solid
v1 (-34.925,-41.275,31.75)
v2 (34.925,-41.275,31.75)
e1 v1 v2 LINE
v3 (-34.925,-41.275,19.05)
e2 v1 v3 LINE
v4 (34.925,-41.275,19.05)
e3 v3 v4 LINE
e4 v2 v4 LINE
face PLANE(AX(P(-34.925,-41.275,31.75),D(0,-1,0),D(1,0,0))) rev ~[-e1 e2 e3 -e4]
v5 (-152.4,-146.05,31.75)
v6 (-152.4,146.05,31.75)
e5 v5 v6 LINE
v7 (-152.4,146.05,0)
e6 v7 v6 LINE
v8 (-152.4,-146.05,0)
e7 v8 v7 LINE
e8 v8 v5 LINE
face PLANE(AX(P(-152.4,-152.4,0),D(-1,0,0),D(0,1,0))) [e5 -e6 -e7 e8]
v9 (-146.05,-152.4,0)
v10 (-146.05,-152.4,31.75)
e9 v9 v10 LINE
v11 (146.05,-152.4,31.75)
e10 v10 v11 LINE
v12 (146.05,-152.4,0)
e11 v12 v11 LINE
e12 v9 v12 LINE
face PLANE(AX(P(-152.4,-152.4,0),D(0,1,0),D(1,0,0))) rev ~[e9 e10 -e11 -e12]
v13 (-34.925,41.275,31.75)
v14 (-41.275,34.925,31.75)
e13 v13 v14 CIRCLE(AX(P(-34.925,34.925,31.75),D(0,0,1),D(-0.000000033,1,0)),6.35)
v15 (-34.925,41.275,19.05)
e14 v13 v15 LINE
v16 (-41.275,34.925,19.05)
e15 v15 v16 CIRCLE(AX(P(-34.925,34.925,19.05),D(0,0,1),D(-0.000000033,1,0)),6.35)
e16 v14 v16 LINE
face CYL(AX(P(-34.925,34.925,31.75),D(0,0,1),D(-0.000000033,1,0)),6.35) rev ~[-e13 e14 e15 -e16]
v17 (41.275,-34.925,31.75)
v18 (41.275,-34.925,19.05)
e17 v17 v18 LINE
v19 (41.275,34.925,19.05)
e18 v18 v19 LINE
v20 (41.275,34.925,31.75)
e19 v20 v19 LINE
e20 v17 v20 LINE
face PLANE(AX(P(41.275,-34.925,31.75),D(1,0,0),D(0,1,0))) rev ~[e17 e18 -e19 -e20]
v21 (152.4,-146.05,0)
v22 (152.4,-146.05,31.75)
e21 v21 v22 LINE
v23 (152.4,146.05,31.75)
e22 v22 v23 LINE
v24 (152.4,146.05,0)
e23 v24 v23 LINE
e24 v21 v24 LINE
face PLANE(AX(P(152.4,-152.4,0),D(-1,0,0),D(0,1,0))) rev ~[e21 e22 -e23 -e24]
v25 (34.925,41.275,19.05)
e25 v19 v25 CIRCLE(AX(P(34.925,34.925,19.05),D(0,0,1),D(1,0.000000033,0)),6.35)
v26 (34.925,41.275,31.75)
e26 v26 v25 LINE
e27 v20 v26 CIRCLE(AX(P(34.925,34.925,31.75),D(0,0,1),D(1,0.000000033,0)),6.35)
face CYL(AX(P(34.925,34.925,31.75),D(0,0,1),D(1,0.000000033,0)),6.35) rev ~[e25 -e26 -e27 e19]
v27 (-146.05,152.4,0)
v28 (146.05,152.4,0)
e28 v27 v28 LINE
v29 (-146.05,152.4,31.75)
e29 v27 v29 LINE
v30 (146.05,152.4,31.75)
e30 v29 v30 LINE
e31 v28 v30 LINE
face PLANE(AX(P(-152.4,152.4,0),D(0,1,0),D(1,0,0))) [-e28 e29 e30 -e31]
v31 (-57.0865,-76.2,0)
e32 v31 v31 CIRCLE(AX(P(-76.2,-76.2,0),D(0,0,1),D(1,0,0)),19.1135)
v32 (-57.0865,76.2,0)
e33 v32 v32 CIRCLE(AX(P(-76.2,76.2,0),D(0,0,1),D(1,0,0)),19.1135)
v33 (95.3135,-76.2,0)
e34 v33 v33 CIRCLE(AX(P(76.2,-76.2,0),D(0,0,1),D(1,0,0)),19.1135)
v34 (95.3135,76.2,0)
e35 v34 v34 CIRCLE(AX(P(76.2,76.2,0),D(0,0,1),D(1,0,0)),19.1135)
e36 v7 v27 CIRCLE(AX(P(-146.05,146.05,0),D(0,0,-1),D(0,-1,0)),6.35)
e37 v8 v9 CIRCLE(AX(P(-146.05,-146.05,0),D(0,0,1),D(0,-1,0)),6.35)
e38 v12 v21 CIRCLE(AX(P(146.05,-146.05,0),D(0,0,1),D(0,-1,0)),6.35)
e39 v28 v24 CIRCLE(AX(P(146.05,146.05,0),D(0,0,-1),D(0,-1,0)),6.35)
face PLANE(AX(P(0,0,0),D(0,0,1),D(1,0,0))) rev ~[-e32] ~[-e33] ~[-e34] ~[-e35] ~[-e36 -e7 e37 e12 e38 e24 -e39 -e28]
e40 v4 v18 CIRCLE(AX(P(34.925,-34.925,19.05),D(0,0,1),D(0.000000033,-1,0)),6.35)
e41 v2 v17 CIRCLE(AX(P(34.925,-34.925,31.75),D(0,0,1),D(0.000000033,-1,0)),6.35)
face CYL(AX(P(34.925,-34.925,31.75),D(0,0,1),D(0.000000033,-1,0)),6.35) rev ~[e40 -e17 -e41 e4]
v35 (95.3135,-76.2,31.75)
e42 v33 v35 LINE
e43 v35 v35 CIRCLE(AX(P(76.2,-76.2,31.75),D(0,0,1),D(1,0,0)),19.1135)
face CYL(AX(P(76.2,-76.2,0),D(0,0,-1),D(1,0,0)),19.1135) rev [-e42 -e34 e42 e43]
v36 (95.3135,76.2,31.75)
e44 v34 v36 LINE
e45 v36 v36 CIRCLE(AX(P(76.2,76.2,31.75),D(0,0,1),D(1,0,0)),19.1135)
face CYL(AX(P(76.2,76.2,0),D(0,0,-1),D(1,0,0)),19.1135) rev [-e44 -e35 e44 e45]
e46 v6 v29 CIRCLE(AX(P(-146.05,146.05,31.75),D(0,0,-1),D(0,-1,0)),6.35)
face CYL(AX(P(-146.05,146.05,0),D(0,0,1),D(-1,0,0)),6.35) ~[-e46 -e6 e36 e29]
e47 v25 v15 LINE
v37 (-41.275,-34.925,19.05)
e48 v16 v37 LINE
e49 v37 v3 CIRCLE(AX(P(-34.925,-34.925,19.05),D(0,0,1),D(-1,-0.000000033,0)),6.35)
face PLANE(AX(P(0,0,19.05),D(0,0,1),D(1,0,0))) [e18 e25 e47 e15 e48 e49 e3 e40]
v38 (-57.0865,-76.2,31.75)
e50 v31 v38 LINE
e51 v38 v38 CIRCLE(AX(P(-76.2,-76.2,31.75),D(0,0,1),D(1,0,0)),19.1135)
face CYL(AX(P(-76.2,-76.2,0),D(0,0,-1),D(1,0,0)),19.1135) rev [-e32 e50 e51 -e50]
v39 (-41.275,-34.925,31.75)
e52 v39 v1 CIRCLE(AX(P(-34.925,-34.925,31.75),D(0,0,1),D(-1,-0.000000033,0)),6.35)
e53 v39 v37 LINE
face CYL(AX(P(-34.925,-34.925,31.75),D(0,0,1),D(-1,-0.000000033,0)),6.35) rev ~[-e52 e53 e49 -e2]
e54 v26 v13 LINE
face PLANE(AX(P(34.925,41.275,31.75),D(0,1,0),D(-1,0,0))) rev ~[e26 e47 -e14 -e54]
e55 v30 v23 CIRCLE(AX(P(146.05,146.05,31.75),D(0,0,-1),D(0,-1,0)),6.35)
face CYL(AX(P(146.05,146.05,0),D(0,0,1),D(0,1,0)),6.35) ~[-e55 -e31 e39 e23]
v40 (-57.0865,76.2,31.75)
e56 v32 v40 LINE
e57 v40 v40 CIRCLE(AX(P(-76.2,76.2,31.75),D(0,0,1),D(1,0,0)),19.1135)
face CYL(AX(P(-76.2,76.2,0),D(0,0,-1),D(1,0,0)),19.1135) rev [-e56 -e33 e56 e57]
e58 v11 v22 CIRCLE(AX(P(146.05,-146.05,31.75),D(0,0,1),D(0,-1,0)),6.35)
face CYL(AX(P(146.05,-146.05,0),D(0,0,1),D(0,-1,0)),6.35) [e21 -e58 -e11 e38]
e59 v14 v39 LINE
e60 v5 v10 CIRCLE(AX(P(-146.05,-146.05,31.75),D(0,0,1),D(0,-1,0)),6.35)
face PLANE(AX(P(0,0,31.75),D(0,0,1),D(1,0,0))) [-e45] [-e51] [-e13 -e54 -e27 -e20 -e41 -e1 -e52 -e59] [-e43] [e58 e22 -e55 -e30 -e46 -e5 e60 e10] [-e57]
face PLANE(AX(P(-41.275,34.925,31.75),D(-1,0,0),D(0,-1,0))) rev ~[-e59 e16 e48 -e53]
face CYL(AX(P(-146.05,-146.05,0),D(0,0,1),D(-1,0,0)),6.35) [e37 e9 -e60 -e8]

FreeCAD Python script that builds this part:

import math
import FreeCAD as App
import Part
import Sketcher
from FreeCAD import Vector
Q = App.Units.Quantity


def edges_at(feature, points):
    """Names of the edges that pass closest to the given points."""
    edges = feature.Shape.Edges
    near = lambda p: min(range(len(edges)), key=lambda i: edges[i].distToShape(Part.Vertex(*p))[0])
    return sorted({f"Edge{near(p) + 1}" for p in points})


def add_polygon(sketch, points):
    """Adds a closed chain of lines whose ends are joined by coincident constraints."""
    first, n = sketch.GeometryCount, len(points)
    for a, b in zip(points, points[1:] + points[:1]):
        sketch.addGeometry(Part.LineSegment(App.Vector(*a, 0), App.Vector(*b, 0)), False)
    for i in range(n):
        sketch.addConstraint(Sketcher.Constraint("Coincident", first + i, 2, first + (i + 1) % n, 1))

doc = App.newDocument("Part")
body = doc.addObject("PartDesign::Body", "Body")

# Sketch on XY plane
sketch1 = doc.addObject("Sketcher::SketchObject", "Sketch")
body.addObject(sketch1)
sketch1.AttachmentSupport = (doc.XY_Plane, [""])
sketch1.MapMode = "FlatFace"
add_polygon(sketch1, [(-152, 152), (-152, -152), (152, -152), (152, 152)])  # lines 0-3
sketch1.addGeometry(Part.Circle(Vector(-76, -76, 0), Vector(0, 0, 1), 19), False)  # 4
sketch1.addGeometry(Part.Circle(Vector(76, -76, 0), Vector(0, 0, 1), 19), False)  # 5
sketch1.addGeometry(Part.Circle(Vector(-76, 76, 0), Vector(0, 0, 1), 19), False)  # 6
sketch1.addGeometry(Part.Circle(Vector(76, 76, 0), Vector(0, 0, 1), 19), False)  # 7
sketch1.addConstraint(Sketcher.Constraint("Vertical", 0))
sketch1.addConstraint(Sketcher.Constraint("Horizontal", 1))
sketch1.addConstraint(Sketcher.Constraint("Vertical", 2))
sketch1.addConstraint(Sketcher.Constraint("Horizontal", 3))
sketch1.addConstraint(Sketcher.Constraint("Equal", 4, 5))
sketch1.addConstraint(Sketcher.Constraint("Equal", 5, 6))
sketch1.addConstraint(Sketcher.Constraint("Equal", 6, 7))
sketch1.addConstraint(Sketcher.Constraint("Symmetric", 5, 3, 6, 3, -1, 1))
sketch1.addConstraint(Sketcher.Constraint("Symmetric", 4, 3, 7, 3, -1, 1))
sketch1.addConstraint(Sketcher.Constraint("Symmetric", 0, 2, 2, 2, -1, 1))
sketch1.addConstraint(Sketcher.Constraint("Symmetric", 4, 3, 5, 3, -2))
sketch1.addConstraint(Sketcher.Constraint("Equal", 3, 0))
sketch1.addConstraint(Sketcher.Constraint("DistanceX", 1, 1, 1, 2, Q("12 in")))
sketch1.addConstraint(Sketcher.Constraint("Diameter", 4, Q("1.505 in")))
sketch1.addConstraint(Sketcher.Constraint("DistanceX", 4, 3, -1, 1, Q("3 in")))
sketch1.addConstraint(Sketcher.Constraint("DistanceY", 4, 3, -1, 1, Q("3 in")))
pad1 = doc.addObject("PartDesign::Pad", "Pad")
body.addObject(pad1)
pad1.Profile = sketch1
pad1.Length = Q("1.25 in")

# Sketch on XY plane
sketch2 = doc.addObject("Sketcher::SketchObject", "Sketch001")
body.addObject(sketch2)
sketch2.AttachmentSupport = (doc.XY_Plane, [""])
sketch2.MapMode = "FlatFace"
sketch2.AttachmentOffset = App.Placement(Vector(0, 0, 1.25 * 25.4), App.Rotation())
sketch2.addGeometry(Part.ArcOfCircle(Part.Circle(Vector(35, 35, 0), Vector(0, 0, 1), 6), math.radians(0), math.radians(90)), False)
sketch2.addGeometry(Part.LineSegment(Vector(35, 41, 0), Vector(-35, 41, 0)), False)
sketch2.addGeometry(Part.ArcOfCircle(Part.Circle(Vector(-35, 35, 0), Vector(0, 0, 1), 6), math.radians(90), math.radians(180)), False)
sketch2.addGeometry(Part.LineSegment(Vector(-41, 35, 0), Vector(-41, -35, 0)), False)
sketch2.addGeometry(Part.ArcOfCircle(Part.Circle(Vector(-35, -35, 0), Vector(0, 0, 1), 6), math.radians(-180), math.radians(-90)), False)
sketch2.addGeometry(Part.LineSegment(Vector(-35, -41, 0), Vector(35, -41, 0)), False)
sketch2.addGeometry(Part.ArcOfCircle(Part.Circle(Vector(35, -35, 0), Vector(0, 0, 1), 6), math.radians(-90), math.radians(0)), False)
sketch2.addGeometry(Part.LineSegment(Vector(41, -35, 0), Vector(41, 35, 0)), False)
sketch2.addConstraint(Sketcher.Constraint("Tangent", 0, 2, 1, 1))
sketch2.addConstraint(Sketcher.Constraint("Tangent", 1, 2, 2, 1))
sketch2.addConstraint(Sketcher.Constraint("Tangent", 2, 2, 3, 1))
sketch2.addConstraint(Sketcher.Constraint("Tangent", 3, 2, 4, 1))
sketch2.addConstraint(Sketcher.Constraint("Tangent", 4, 2, 5, 1))
sketch2.addConstraint(Sketcher.Constraint("Tangent", 5, 2, 6, 1))
sketch2.addConstraint(Sketcher.Constraint("Tangent", 6, 2, 7, 1))
sketch2.addConstraint(Sketcher.Constraint("Tangent", 7, 2, 0, 1))
sketch2.addConstraint(Sketcher.Constraint("Horizontal", 1))
sketch2.addConstraint(Sketcher.Constraint("Vertical", 3))
sketch2.addConstraint(Sketcher.Constraint("Horizontal", 5))
sketch2.addConstraint(Sketcher.Constraint("Vertical", 7))
sketch2.addConstraint(Sketcher.Constraint("Equal", 0, 2))
sketch2.addConstraint(Sketcher.Constraint("Equal", 2, 4))
sketch2.addConstraint(Sketcher.Constraint("Equal", 4, 6))
sketch2.addConstraint(Sketcher.Constraint("Symmetric", 0, 3, 4, 3, -1, 1))
sketch2.addConstraint(Sketcher.Constraint("Equal", 5, 3))
sketch2.addConstraint(Sketcher.Constraint("Radius", 0, Q("0.25 in")))
sketch2.addConstraint(Sketcher.Constraint("DistanceY", 6, 3, 0, 2, Q("3 in")))
pocket1 = doc.addObject("PartDesign::Pocket", "Pocket")
body.addObject(pocket1)
pocket1.Profile = sketch2
pocket1.Length = Q("0.5 in")
doc.recompute()

fillet = doc.addObject("PartDesign::Fillet", "Fillet")
body.addObject(fillet)
fillet.Base = (pocket1, edges_at(pocket1, [
    (152.4, 152.4, 15.875),
    (152.4, -152.4, 15.875),
    (-152.4, 152.4, 15.875),
    (-152.4, -152.4, 15.875),
]))
fillet.Radius = Q("0.25 in")

doc.recompute()
